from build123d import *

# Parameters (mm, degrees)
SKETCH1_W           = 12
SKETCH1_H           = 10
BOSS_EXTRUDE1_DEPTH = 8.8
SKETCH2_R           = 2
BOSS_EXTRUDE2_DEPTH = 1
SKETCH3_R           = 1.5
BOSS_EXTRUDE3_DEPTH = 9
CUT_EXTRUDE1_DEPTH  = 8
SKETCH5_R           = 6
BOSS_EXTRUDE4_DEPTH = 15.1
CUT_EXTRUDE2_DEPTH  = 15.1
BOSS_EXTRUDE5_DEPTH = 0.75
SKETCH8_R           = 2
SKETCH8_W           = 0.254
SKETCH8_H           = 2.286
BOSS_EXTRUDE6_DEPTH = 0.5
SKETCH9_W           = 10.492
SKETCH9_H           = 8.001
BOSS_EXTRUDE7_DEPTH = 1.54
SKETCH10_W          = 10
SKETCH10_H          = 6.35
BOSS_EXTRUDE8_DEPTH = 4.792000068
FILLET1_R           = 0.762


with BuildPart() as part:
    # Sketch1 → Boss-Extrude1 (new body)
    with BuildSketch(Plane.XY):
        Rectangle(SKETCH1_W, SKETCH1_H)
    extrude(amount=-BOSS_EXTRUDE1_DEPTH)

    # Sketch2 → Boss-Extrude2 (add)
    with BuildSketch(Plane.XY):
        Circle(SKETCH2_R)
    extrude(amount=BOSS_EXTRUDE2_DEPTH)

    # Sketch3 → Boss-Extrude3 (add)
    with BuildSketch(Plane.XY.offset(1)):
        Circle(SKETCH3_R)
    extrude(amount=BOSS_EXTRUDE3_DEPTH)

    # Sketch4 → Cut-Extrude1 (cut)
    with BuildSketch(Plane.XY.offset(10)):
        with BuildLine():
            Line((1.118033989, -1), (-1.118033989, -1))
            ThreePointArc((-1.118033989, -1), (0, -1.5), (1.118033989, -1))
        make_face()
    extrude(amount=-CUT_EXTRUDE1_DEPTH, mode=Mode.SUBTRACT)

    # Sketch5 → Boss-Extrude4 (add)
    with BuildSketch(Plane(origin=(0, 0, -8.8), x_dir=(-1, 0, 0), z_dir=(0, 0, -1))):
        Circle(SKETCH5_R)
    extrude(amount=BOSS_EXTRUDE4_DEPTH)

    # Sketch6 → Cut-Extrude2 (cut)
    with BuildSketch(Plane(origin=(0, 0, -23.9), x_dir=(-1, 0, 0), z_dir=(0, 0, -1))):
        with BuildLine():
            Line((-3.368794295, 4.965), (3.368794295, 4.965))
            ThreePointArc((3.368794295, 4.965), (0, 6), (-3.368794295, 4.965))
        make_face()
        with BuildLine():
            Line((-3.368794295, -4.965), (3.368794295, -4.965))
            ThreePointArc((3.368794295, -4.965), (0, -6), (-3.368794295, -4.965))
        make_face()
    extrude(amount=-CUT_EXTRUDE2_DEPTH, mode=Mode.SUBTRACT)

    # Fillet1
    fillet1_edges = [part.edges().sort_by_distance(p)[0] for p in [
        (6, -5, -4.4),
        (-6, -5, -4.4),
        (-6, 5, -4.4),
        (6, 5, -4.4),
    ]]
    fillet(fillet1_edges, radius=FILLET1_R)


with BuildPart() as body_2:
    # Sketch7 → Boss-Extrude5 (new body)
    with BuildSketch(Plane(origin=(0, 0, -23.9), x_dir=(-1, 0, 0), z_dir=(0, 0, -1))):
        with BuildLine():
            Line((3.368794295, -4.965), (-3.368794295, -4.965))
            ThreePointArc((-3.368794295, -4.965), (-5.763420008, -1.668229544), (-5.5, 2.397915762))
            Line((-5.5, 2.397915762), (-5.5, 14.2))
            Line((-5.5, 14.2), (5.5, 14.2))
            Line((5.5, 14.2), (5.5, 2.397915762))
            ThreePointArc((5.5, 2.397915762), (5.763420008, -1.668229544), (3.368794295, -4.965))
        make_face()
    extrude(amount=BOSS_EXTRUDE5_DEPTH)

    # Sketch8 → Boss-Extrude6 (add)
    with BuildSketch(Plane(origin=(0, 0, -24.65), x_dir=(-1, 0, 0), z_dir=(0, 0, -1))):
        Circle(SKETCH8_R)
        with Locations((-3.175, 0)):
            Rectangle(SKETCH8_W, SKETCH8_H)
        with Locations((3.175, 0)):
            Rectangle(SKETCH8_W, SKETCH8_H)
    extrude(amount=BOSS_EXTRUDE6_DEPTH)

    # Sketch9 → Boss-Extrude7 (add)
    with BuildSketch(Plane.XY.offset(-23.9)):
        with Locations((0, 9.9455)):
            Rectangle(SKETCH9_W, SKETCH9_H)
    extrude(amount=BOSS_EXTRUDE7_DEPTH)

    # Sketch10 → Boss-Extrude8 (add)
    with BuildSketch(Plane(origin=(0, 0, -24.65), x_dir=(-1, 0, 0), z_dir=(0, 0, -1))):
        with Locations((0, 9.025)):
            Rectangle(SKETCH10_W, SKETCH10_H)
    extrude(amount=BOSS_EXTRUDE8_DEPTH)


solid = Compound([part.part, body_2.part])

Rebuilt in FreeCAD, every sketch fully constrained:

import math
import FreeCAD as App
import Part
import Sketcher
Q = App.Units.Quantity


def edges_at(feature, points):
    """Names of the edges that pass closest to the given points."""
    edges = feature.Shape.Edges
    near = lambda p: min(range(len(edges)), key=lambda i: edges[i].distToShape(Part.Vertex(*p))[0])
    return sorted({f"Edge{near(p) + 1}" for p in points})


def add_polygon(sketch, points):
    """Adds a closed chain of lines whose ends are joined by coincident constraints."""
    first, n = sketch.GeometryCount, len(points)
    for a, b in zip(points, points[1:] + points[:1]):
        sketch.addGeometry(Part.LineSegment(App.Vector(*a, 0), App.Vector(*b, 0)), False)
    for i in range(n):
        sketch.addConstraint(Sketcher.Constraint("Coincident", first + i, 2, first + (i + 1) % n, 1))

doc = App.newDocument("Part")
body = doc.addObject("PartDesign::Body", "Body")

sketch1 = doc.addObject("Sketcher::SketchObject", "Sketch")
body.addObject(sketch1)
sketch1.AttachmentSupport = (doc.XY_Plane, [""])
sketch1.MapMode = "FlatFace"
add_polygon(sketch1, [(-6, 5), (-6, -5), (6, -5), (6, 5)])
sketch1.addConstraint(Sketcher.Constraint("Vertical", 0))
sketch1.addConstraint(Sketcher.Constraint("Horizontal", 1))
sketch1.addConstraint(Sketcher.Constraint("Vertical", 2))
sketch1.addConstraint(Sketcher.Constraint("Horizontal", 3))
sketch1.addConstraint(Sketcher.Constraint("Symmetric", 0, 2, 2, 2, -1, 1))
sketch1.addConstraint(Sketcher.Constraint("DistanceX", 1, 1, 1, 2, Q("12 mm")))
sketch1.addConstraint(Sketcher.Constraint("DistanceY", 0, 2, 0, 1, Q("10 mm")))
pad1 = doc.addObject("PartDesign::Pad", "Pad")
body.addObject(pad1)
pad1.Profile = sketch1
pad1.Length = 8.8
pad1.Reversed = True

sketch2 = doc.addObject("Sketcher::SketchObject", "Sketch001")
body.addObject(sketch2)
sketch2.AttachmentSupport = (doc.XY_Plane, [""])
sketch2.MapMode = "FlatFace"
sketch2.addGeometry(Part.Circle(App.Vector(0, 0, 0), App.Vector(0, 0, 1), 2), False)
sketch2.addConstraint(Sketcher.Constraint("Coincident", 0, 3, -1, 1))
sketch2.addConstraint(Sketcher.Constraint("Diameter", 0, Q("4 mm")))
pad2 = doc.addObject("PartDesign::Pad", "Pad001")
body.addObject(pad2)
pad2.Profile = sketch2
pad2.Length = 1

sketch3 = doc.addObject("Sketcher::SketchObject", "Sketch002")
body.addObject(sketch3)
sketch3.AttachmentSupport = (doc.XY_Plane, [""])
sketch3.MapMode = "FlatFace"
sketch3.AttachmentOffset = App.Placement(App.Vector(0, 0, 1), App.Rotation())
sketch3.addGeometry(Part.Circle(App.Vector(0, 0, 0), App.Vector(0, 0, 1), 1.5), False)
sketch3.addConstraint(Sketcher.Constraint("Coincident", 0, 3, -1, 1))
sketch3.addConstraint(Sketcher.Constraint("Diameter", 0, Q("3 mm")))
pad3 = doc.addObject("PartDesign::Pad", "Pad002")
body.addObject(pad3)
pad3.Profile = sketch3
pad3.Length = 9

sketch4 = doc.addObject("Sketcher::SketchObject", "Sketch003")
body.addObject(sketch4)
sketch4.AttachmentSupport = (doc.XY_Plane, [""])
sketch4.MapMode = "FlatFace"
sketch4.AttachmentOffset = App.Placement(App.Vector(0, 0, 10), App.Rotation())
sketch4.addGeometry(Part.LineSegment(App.Vector(1.1, -1, 0), App.Vector(-1.1, -1, 0)), False)
sketch4.addGeometry(Part.ArcOfCircle(Part.Circle(App.Vector(0, 0, 0), App.Vector(0, 0, 1), 1.5), math.radians(-138), math.radians(-42)), False)
sketch4.addConstraint(Sketcher.Constraint("Coincident", 0, 1, 1, 2))
sketch4.addConstraint(Sketcher.Constraint("Coincident", 1, 1, 0, 2))
sketch4.addConstraint(Sketcher.Constraint("Horizontal", 0))
sketch4.addConstraint(Sketcher.Constraint("Coincident", 1, 3, -1, 1))
sketch4.addConstraint(Sketcher.Constraint("Radius", 1, Q("1.5 mm")))
sketch4.addConstraint(Sketcher.Constraint("DistanceY", 0, 1, -1, 1, Q("1 mm")))
pocket1 = doc.addObject("PartDesign::Pocket", "Pocket")
body.addObject(pocket1)
pocket1.Profile = sketch4
pocket1.Length = 8

sketch5 = doc.addObject("Sketcher::SketchObject", "Sketch004")
body.addObject(sketch5)
sketch5.AttachmentSupport = (doc.XY_Plane, [""])
sketch5.MapMode = "FlatFace"
sketch5.AttachmentOffset = App.Placement(App.Vector(0, 0, -8.8), App.Rotation())
sketch5.addGeometry(Part.Circle(App.Vector(0, 0, 0), App.Vector(0, 0, 1), 6), False)
sketch5.addConstraint(Sketcher.Constraint("Coincident", 0, 3, -1, 1))
sketch5.addConstraint(Sketcher.Constraint("Diameter", 0, Q("12 mm")))
pad4 = doc.addObject("PartDesign::Pad", "Pad003")
body.addObject(pad4)
pad4.Profile = sketch5
pad4.Length = 15.1
pad4.Reversed = True

sketch6 = doc.addObject("Sketcher::SketchObject", "Sketch005")
body.addObject(sketch6)
sketch6.AttachmentSupport = (doc.XY_Plane, [""])
sketch6.MapMode = "FlatFace"
sketch6.AttachmentOffset = App.Placement(App.Vector(0, 0, -23.9), App.Rotation())
sketch6.addGeometry(Part.LineSegment(App.Vector(3, 5, 0), App.Vector(-3, 5, 0)), False)
sketch6.addGeometry(Part.ArcOfCircle(Part.Circle(App.Vector(0, 0, 0), App.Vector(0, 0, 1), 6), math.radians(56), math.radians(124)), False)
sketch6.addGeometry(Part.LineSegment(App.Vector(-3, -5, 0), App.Vector(3, -5, 0)), False)
sketch6.addGeometry(Part.ArcOfCircle(Part.Circle(App.Vector(0, 0, 0), App.Vector(0, 0, 1), 6), math.radians(-124), math.radians(-56)), False)
sketch6.addConstraint(Sketcher.Constraint("Coincident", 0, 1, 1, 1))
sketch6.addConstraint(Sketcher.Constraint("Coincident", 1, 2, 0, 2))
sketch6.addConstraint(Sketcher.Constraint("Coincident", 2, 1, 3, 1))
sketch6.addConstraint(Sketcher.Constraint("Coincident", 3, 2, 2, 2))
sketch6.addConstraint(Sketcher.Constraint("Horizontal", 0))
sketch6.addConstraint(Sketcher.Constraint("Horizontal", 2))
sketch6.addConstraint(Sketcher.Constraint("Coincident", 1, 3, -1, 1))
sketch6.addConstraint(Sketcher.Constraint("Coincident", 3, 3, -1, 1))
sketch6.addConstraint(Sketcher.Constraint("Equal", 1, 3))
sketch6.addConstraint(Sketcher.Constraint("Vertical", 1, 2, 2, 1))
sketch6.addConstraint(Sketcher.Constraint("Radius", 1, Q("6 mm")))
sketch6.addConstraint(Sketcher.Constraint("DistanceY", 2, 1, 1, 2, Q("9.93 mm")))
pocket2 = doc.addObject("PartDesign::Pocket", "Pocket001")
body.addObject(pocket2)
pocket2.Profile = sketch6
pocket2.Length = 15.1
pocket2.Reversed = True
doc.recompute()

fillet = doc.addObject("PartDesign::Fillet", "Fillet")
body.addObject(fillet)
fillet.Base = (pocket2, edges_at(pocket2, [
    (6, -5, -4.4),
    (-6, -5, -4.4),
    (-6, 5, -4.4),
    (6, 5, -4.4),
]))
fillet.Radius = 0.762
body2 = doc.addObject("PartDesign::Body", "Body001")

sketch7 = doc.addObject("Sketcher::SketchObject", "Sketch006")
body2.addObject(sketch7)
sketch7.AttachmentSupport = (doc.getObject("XY_Plane001"), [""])
sketch7.MapMode = "FlatFace"
sketch7.AttachmentOffset = App.Placement(App.Vector(0, 0, -23.9), App.Rotation())
sketch7.addGeometry(Part.LineSegment(App.Vector(3, -5, 0), App.Vector(-3, -5, 0)), False)
sketch7.addGeometry(Part.ArcOfCircle(Part.Circle(App.Vector(0, 0, 0), App.Vector(0, 0, 1), 6), math.radians(156), math.radians(236)), False)
sketch7.addGeometry(Part.LineSegment(App.Vector(-6, 2, 0), App.Vector(-6, 14, 0)), False)
sketch7.addGeometry(Part.LineSegment(App.Vector(-6, 14, 0), App.Vector(6, 14, 0)), False)
sketch7.addGeometry(Part.LineSegment(App.Vector(6, 14, 0), App.Vector(6, 2, 0)), False)
sketch7.addGeometry(Part.ArcOfCircle(Part.Circle(App.Vector(0, 0, 0), App.Vector(0, 0, 1), 6), math.radians(-56), math.radians(24)), False)
sketch7.addConstraint(Sketcher.Constraint("Coincident", 0, 2, 1, 2))
sketch7.addConstraint(Sketcher.Constraint("Coincident", 1, 1, 2, 1))
sketch7.addConstraint(Sketcher.Constraint("Coincident", 2, 2, 3, 1))
sketch7.addConstraint(Sketcher.Constraint("Coincident", 3, 2, 4, 1))
sketch7.addConstraint(Sketcher.Constraint("Coincident", 4, 2, 5, 2))
sketch7.addConstraint(Sketcher.Constraint("Coincident", 5, 1, 0, 1))
sketch7.addConstraint(Sketcher.Constraint("Horizontal", 0))
sketch7.addConstraint(Sketcher.Constraint("Vertical", 2))
sketch7.addConstraint(Sketcher.Constraint("Horizontal", 3))
sketch7.addConstraint(Sketcher.Constraint("Vertical", 4))
sketch7.addConstraint(Sketcher.Constraint("Coincident", 1, 3, -1, 1))
sketch7.addConstraint(Sketcher.Constraint("Coincident", 5, 3, -1, 1))
sketch7.addConstraint(Sketcher.Constraint("Equal", 1, 5))
sketch7.addConstraint(Sketcher.Constraint("Horizontal", 1, 1, 4, 2))
sketch7.addConstraint(Sketcher.Constraint("Radius", 1, Q("6 mm")))
sketch7.addConstraint(Sketcher.Constraint("DistanceX", 3, 1, 3, 2, Q("11 mm")))
sketch7.addConstraint(Sketcher.Constraint("DistanceY", -1, 1, 2, 2, Q("14.2 mm")))
sketch7.addConstraint(Sketcher.Constraint("DistanceY", 0, 2, -1, 1, Q("4.965 mm")))
pad5 = doc.addObject("PartDesign::Pad", "Pad004")
body2.addObject(pad5)
pad5.Profile = sketch7
pad5.Length = 0.75
pad5.Reversed = True

sketch8 = doc.addObject("Sketcher::SketchObject", "Sketch007")
body2.addObject(sketch8)
sketch8.AttachmentSupport = (doc.getObject("XY_Plane001"), [""])
sketch8.MapMode = "FlatFace"
sketch8.AttachmentOffset = App.Placement(App.Vector(0, 0, -24.65), App.Rotation())
sketch8.addGeometry(Part.Circle(App.Vector(0, 0, 0), App.Vector(0, 0, 1), 2), False)
add_polygon(sketch8, [(3.3, 1.14), (3.3, -1.14), (3.05, -1.14), (3.05, 1.14)])
add_polygon(sketch8, [(-3.05, 1.14), (-3.05, -1.14), (-3.3, -1.14), (-3.3, 1.14)])
sketch8.addConstraint(Sketcher.Constraint("Vertical", 1))
sketch8.addConstraint(Sketcher.Constraint("Horizontal", 2))
sketch8.addConstraint(Sketcher.Constraint("Vertical", 3))
sketch8.addConstraint(Sketcher.Constraint("Horizontal", 4))
sketch8.addConstraint(Sketcher.Constraint("Vertical", 5))
sketch8.addConstraint(Sketcher.Constraint("Horizontal", 6))
sketch8.addConstraint(Sketcher.Constraint("Vertical", 7))
sketch8.addConstraint(Sketcher.Constraint("Horizontal", 8))
sketch8.addConstraint(Sketcher.Constraint("Coincident", 0, 3, -1, 1))
sketch8.addConstraint(Sketcher.Constraint("Symmetric", 3, 2, 5, 2, -1, 1))
sketch8.addConstraint(Sketcher.Constraint("Symmetric", 1, 2, 7, 2, -1, 1))
sketch8.addConstraint(Sketcher.Constraint("Horizontal", 2, 2, 5, 2))
sketch8.addConstraint(Sketcher.Constraint("Diameter", 0, Q("4 mm")))
sketch8.addConstraint(Sketcher.Constraint("DistanceX", 2, 2, 2, 1, Q("0.254 mm")))
sketch8.addConstraint(Sketcher.Constraint("DistanceY", 1, 2, 1, 1, Q("2.286 mm")))
sketch8.addConstraint(Sketcher.Constraint("DistanceX", 5, 2, 1, 2, Q("6.35 mm")))
pad6 = doc.addObject("PartDesign::Pad", "Pad005")
body2.addObject(pad6)
pad6.Profile = sketch8
pad6.Length = 0.5
pad6.Reversed = True

sketch9 = doc.addObject("Sketcher::SketchObject", "Sketch008")
body2.addObject(sketch9)
sketch9.AttachmentSupport = (doc.getObject("XY_Plane001"), [""])
sketch9.MapMode = "FlatFace"
sketch9.AttachmentOffset = App.Placement(App.Vector(0, 0, -23.9), App.Rotation())
add_polygon(sketch9, [(-5, 14), (-5, 6), (5, 6), (5, 14)])
sketch9.addConstraint(Sketcher.Constraint("Vertical", 0))
sketch9.addConstraint(Sketcher.Constraint("Horizontal", 1))
sketch9.addConstraint(Sketcher.Constraint("Vertical", 2))
sketch9.addConstraint(Sketcher.Constraint("Horizontal", 3))
sketch9.addConstraint(Sketcher.Constraint("DistanceX", 1, 1, 1, 2, Q("10.492 mm")))
sketch9.addConstraint(Sketcher.Constraint("DistanceY", 0, 2, 0, 1, Q("8.001 mm")))
sketch9.addConstraint(Sketcher.Constraint("DistanceX", 0, 2, -1, 1, Q("5.246 mm")))
sketch9.addConstraint(Sketcher.Constraint("DistanceY", -1, 1, 0, 2, Q("5.945 mm")))
pad7 = doc.addObject("PartDesign::Pad", "Pad006")
body2.addObject(pad7)
pad7.Profile = sketch9
pad7.Length = 1.54

sketch10 = doc.addObject("Sketcher::SketchObject", "Sketch009")
body2.addObject(sketch10)
sketch10.AttachmentSupport = (doc.getObject("XY_Plane001"), [""])
sketch10.MapMode = "FlatFace"
sketch10.AttachmentOffset = App.Placement(App.Vector(0, 0, -24.65), App.Rotation())
add_polygon(sketch10, [(5, 12), (5, 6), (-5, 6), (-5, 12)])
sketch10.addConstraint(Sketcher.Constraint("Vertical", 0))
sketch10.addConstraint(Sketcher.Constraint("Horizontal", 1))
sketch10.addConstraint(Sketcher.Constraint("Vertical", 2))
sketch10.addConstraint(Sketcher.Constraint("Horizontal", 3))
sketch10.addConstraint(Sketcher.Constraint("DistanceX", 1, 2, 1, 1, Q("10 mm")))
sketch10.addConstraint(Sketcher.Constraint("DistanceX", -1, 1, 0, 2, Q("5 mm")))
sketch10.addConstraint(Sketcher.Constraint("DistanceY", 0, 2, 0, 1, Q("6.35 mm")))
sketch10.addConstraint(Sketcher.Constraint("DistanceY", -1, 1, 2, 2, Q("12.2 mm")))
pad8 = doc.addObject("PartDesign::Pad", "Pad007")
body2.addObject(pad8)
pad8.Profile = sketch10
pad8.Length = 4.792
pad8.Reversed = True

doc.recompute()
